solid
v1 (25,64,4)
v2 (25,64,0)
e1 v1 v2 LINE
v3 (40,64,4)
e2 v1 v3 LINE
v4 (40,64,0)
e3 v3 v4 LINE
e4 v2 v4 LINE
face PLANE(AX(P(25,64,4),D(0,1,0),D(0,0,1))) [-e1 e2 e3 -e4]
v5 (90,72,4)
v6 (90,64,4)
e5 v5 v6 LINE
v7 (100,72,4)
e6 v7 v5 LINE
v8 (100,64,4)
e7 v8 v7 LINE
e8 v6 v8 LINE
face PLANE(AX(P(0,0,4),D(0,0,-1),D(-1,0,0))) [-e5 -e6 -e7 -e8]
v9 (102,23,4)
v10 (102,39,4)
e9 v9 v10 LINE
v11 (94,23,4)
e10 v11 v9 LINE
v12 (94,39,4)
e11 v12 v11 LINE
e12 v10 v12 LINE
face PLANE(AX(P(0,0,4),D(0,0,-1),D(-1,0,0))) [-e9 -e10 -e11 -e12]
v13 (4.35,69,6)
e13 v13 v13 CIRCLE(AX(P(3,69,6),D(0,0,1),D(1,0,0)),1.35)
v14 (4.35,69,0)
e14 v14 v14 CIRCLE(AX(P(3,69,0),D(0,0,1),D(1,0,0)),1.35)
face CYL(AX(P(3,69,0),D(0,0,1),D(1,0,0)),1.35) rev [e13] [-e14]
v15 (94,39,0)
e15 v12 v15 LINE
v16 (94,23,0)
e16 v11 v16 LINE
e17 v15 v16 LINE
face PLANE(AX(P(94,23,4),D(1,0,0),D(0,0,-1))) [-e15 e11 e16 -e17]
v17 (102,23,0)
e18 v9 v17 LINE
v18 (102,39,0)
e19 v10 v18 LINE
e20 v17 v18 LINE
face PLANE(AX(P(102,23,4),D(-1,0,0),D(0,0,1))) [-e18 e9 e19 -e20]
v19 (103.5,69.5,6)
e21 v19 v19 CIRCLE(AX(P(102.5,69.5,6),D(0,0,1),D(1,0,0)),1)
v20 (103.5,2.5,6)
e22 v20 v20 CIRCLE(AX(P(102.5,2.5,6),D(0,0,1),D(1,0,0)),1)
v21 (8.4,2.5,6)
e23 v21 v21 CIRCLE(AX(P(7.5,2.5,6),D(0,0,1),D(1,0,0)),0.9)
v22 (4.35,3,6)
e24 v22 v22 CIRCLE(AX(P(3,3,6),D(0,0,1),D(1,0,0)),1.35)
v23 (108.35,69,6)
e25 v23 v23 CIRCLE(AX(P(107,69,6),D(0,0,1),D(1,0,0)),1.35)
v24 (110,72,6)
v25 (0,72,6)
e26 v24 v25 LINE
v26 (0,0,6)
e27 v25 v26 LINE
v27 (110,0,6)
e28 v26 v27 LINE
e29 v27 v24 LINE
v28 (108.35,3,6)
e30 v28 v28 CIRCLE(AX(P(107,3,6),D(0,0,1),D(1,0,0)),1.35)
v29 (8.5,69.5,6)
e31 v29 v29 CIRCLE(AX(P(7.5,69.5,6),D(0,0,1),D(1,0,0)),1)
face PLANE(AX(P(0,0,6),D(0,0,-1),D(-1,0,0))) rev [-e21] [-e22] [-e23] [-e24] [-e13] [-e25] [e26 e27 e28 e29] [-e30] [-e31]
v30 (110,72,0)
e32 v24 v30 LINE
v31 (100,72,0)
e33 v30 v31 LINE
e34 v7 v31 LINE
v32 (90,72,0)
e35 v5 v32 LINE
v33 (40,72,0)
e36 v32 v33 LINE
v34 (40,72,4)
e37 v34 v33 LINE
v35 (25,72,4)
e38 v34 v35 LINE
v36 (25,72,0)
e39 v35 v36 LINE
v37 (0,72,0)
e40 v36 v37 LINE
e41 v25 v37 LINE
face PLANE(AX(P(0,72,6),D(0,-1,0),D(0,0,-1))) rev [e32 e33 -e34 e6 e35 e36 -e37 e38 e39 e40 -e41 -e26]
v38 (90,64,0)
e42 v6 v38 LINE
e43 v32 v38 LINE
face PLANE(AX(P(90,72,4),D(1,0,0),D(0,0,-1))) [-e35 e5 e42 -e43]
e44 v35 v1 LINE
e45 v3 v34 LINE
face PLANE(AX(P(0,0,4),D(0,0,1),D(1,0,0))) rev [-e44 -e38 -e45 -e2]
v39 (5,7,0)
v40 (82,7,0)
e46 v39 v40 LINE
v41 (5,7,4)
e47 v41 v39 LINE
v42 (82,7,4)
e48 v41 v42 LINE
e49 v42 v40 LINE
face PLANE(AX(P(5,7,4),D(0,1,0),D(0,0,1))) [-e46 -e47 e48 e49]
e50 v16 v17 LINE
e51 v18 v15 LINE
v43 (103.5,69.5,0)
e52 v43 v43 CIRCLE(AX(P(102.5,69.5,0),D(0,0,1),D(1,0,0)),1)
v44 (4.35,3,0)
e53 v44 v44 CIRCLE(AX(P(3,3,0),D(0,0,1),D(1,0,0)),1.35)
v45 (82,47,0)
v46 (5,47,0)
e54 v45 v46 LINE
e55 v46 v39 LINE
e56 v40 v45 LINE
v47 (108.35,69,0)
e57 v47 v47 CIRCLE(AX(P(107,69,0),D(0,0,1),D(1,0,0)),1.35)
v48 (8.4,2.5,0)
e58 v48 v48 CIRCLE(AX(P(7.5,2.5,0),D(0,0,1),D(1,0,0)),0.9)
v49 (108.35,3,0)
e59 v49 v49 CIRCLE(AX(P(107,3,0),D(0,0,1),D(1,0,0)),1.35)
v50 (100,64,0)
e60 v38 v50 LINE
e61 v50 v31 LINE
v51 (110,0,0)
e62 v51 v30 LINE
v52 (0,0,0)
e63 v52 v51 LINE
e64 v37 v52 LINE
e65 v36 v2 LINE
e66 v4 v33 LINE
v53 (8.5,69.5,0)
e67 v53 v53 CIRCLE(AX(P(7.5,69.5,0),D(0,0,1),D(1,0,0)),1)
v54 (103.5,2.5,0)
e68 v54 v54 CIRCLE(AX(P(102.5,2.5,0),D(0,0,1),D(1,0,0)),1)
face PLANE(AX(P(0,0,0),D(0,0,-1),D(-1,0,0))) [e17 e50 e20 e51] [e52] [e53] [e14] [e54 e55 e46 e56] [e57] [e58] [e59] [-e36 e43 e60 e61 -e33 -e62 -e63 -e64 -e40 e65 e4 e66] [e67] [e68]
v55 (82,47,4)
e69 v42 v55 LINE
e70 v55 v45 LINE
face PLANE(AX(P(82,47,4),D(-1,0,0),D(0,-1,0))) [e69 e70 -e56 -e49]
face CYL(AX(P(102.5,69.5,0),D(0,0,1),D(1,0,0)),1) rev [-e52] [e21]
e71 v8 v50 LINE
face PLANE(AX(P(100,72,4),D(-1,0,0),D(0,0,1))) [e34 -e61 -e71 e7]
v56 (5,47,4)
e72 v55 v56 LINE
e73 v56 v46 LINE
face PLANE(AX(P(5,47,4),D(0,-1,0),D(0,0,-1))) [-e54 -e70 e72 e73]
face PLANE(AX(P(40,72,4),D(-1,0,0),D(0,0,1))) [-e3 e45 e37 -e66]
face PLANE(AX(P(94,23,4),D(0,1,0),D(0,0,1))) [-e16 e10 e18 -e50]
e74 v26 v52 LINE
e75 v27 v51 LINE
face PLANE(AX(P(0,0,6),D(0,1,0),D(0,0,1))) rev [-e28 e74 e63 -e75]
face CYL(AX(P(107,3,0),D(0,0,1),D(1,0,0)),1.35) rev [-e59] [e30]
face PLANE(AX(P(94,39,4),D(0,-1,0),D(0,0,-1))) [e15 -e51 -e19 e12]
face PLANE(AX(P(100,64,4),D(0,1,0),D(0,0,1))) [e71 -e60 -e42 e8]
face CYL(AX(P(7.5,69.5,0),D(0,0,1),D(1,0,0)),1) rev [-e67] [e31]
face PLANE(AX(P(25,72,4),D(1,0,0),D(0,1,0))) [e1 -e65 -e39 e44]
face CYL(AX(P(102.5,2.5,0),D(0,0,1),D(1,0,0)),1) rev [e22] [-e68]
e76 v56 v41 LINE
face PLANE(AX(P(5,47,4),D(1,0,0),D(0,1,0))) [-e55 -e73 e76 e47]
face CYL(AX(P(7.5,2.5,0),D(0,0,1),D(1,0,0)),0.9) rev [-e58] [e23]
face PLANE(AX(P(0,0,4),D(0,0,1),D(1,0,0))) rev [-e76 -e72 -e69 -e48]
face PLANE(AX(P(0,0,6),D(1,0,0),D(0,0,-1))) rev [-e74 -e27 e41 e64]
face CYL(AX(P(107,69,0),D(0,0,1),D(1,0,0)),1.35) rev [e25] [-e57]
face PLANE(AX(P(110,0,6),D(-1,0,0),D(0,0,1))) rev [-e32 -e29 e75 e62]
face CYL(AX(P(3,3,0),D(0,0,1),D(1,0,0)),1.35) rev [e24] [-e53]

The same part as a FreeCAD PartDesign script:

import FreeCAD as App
import Part
import Sketcher

V = App.Vector
Q = App.Units.Quantity


def add_polygon(sketch, points):
    """Adds a closed chain of lines whose ends are joined by coincident constraints."""
    first, n = sketch.GeometryCount, len(points)
    for a, b in zip(points, points[1:] + points[:1]):
        sketch.addGeometry(Part.LineSegment(App.Vector(*a, 0), App.Vector(*b, 0)), False)
    for i in range(n):
        sketch.addConstraint(Sketcher.Constraint("Coincident", first + i, 2, first + (i + 1) % n, 1))

doc = App.newDocument("Part")
body = doc.addObject("PartDesign::Body", "Body")

sketch1 = body.newObject("Sketcher::SketchObject", "Sketch")
sketch1.AttachmentSupport = (doc.getObject("XY_Plane"), [""])
sketch1.MapMode = "FlatFace"
add_polygon(sketch1, [(0, 72), (0, 0), (110, 0), (110, 72)])
sketch1.addConstraint([
    Sketcher.Constraint("Vertical", 0),
    Sketcher.Constraint("Horizontal", 1),
    Sketcher.Constraint("Vertical", 2),
    Sketcher.Constraint("Horizontal", 3),
    Sketcher.Constraint("Coincident", 0, 2, -1, 1),
    Sketcher.Constraint("DistanceX", 1, 1, 1, 2, Q("110 mm")),
    Sketcher.Constraint("DistanceY", 0, 2, 0, 1, Q("72 mm")),
])
pad1 = body.newObject("PartDesign::Pad", "Pad")
pad1.Profile = sketch1
pad1.Length = 6

sketch2 = body.newObject("Sketcher::SketchObject", "Sketch001")
sketch2.AttachmentSupport = (doc.getObject("XY_Plane"), [""])
sketch2.MapMode = "FlatFace"
sketch2.AttachmentOffset = App.Placement(V(0, 0, 6), App.Rotation())
sketch2.addGeometry([
    Part.Circle(V(7.5, 69.5, 0), V(0, 0, 1), 1),
    Part.Circle(V(7.5, 2.5, 0), V(0, 0, 1), 0.9),
    Part.Circle(V(102.5, 2.5, 0), V(0, 0, 1), 1),
    Part.Circle(V(102.5, 69.5, 0), V(0, 0, 1), 1),
], False)
sketch2.addConstraint([
    Sketcher.Constraint("Equal", 0, 2),
    Sketcher.Constraint("Equal", 2, 3),
    Sketcher.Constraint("Horizontal", 1, 3, 2, 3),
    Sketcher.Constraint("Horizontal", 0, 3, 3, 3),
    Sketcher.Constraint("Vertical", 0, 3, 1, 3),
    Sketcher.Constraint("Vertical", 2, 3, 3, 3),
    Sketcher.Constraint("Diameter", 0, Q("2 mm")),
    Sketcher.Constraint("Diameter", 1, Q("1.8 mm")),
    Sketcher.Constraint("DistanceY", 1, 3, 0, 3, Q("67 mm")),
    Sketcher.Constraint("DistanceX", 1, 3, 2, 3, Q("95 mm")),
    Sketcher.Constraint("DistanceX", -1, 1, 0, 3, Q("7.5 mm")),
    Sketcher.Constraint("DistanceY", -1, 1, 0, 3, Q("69.5 mm")),
])
pocket1 = body.newObject("PartDesign::Pocket", "Pocket")
pocket1.Profile = sketch2
pocket1.Type = "ThroughAll"

sketch3 = body.newObject("Sketcher::SketchObject", "Sketch002")
sketch3.AttachmentSupport = (doc.getObject("XY_Plane"), [""])
sketch3.MapMode = "FlatFace"
add_polygon(sketch3, [(5, 47), (5, 7), (82, 7), (82, 47)])
add_polygon(sketch3, [(25, 72), (25, 64), (40, 64), (40, 72)])
add_polygon(sketch3, [(90, 72), (90, 64), (100, 64), (100, 72)])
add_polygon(sketch3, [(94, 39), (94, 23), (102, 23), (102, 39)])
sketch3.addConstraint([
    Sketcher.Constraint("Vertical", 0),
    Sketcher.Constraint("Horizontal", 1),
    Sketcher.Constraint("Vertical", 2),
    Sketcher.Constraint("Horizontal", 3),
    Sketcher.Constraint("Vertical", 4),
    Sketcher.Constraint("Horizontal", 5),
    Sketcher.Constraint("Vertical", 6),
    Sketcher.Constraint("Horizontal", 7),
    Sketcher.Constraint("Vertical", 8),
    Sketcher.Constraint("Horizontal", 9),
    Sketcher.Constraint("Vertical", 10),
    Sketcher.Constraint("Horizontal", 11),
    Sketcher.Constraint("Vertical", 12),
    Sketcher.Constraint("Horizontal", 13),
    Sketcher.Constraint("Vertical", 14),
    Sketcher.Constraint("Horizontal", 15),
    Sketcher.Constraint("Horizontal", 5, 2, 8, 2),
    Sketcher.Constraint("Horizontal", 7, 2, 10, 2),
    Sketcher.Constraint("Equal", 15, 4),
    Sketcher.Constraint("DistanceX", 1, 1, 1, 2, Q("77 mm")),
    Sketcher.Constraint("DistanceX", 5, 1, 5, 2, Q("15 mm")),
    Sketcher.Constraint("DistanceX", 9, 1, 9, 2, Q("10 mm")),
    Sketcher.Constraint("DistanceX", 13, 1, 13, 2, Q("8 mm")),
    Sketcher.Constraint("DistanceY", 0, 2, 0, 1, Q("40 mm")),
    Sketcher.Constraint("DistanceY", 12, 2, 12, 1, Q("16 mm")),
    Sketcher.Constraint("DistanceX", -1, 1, 0, 2, Q("5 mm")),
    Sketcher.Constraint("DistanceY", -1, 1, 0, 2, Q("7 mm")),
    Sketcher.Constraint("DistanceX", -1, 1, 4, 2, Q("25 mm")),
    Sketcher.Constraint("DistanceY", -1, 1, 4, 2, Q("64 mm")),
    Sketcher.Constraint("DistanceX", -1, 1, 8, 2, Q("90 mm")),
    Sketcher.Constraint("DistanceX", -1, 1, 12, 2, Q("94 mm")),
    Sketcher.Constraint("DistanceY", -1, 1, 12, 2, Q("23 mm")),
])
pocket2 = body.newObject("PartDesign::Pocket", "Pocket001")
pocket2.Profile = sketch3
pocket2.Length = 4
pocket2.Reversed = True

sketch4 = body.newObject("Sketcher::SketchObject", "Sketch003")
sketch4.AttachmentSupport = (doc.getObject("XY_Plane"), [""])
sketch4.MapMode = "FlatFace"
sketch4.AttachmentOffset = App.Placement(V(0, 0, 6), App.Rotation())
sketch4.addGeometry([
    Part.Circle(V(107, 69, 0), V(0, 0, 1), 1.4),
    Part.Circle(V(107, 3, 0), V(0, 0, 1), 1.4),
    Part.Circle(V(3, 69, 0), V(0, 0, 1), 1.4),
    Part.Circle(V(3, 3, 0), V(0, 0, 1), 1.4),
], False)
sketch4.addConstraint([
    Sketcher.Constraint("Equal", 0, 1),
    Sketcher.Constraint("Equal", 1, 2),
    Sketcher.Constraint("Equal", 2, 3),
    Sketcher.Constraint("Horizontal", 0, 3, 2, 3),
    Sketcher.Constraint("Horizontal", 1, 3, 3, 3),
    Sketcher.Constraint("Vertical", 0, 3, 1, 3),
    Sketcher.Constraint("Vertical", 2, 3, 3, 3),
    Sketcher.Constraint("Diameter", 0, Q("2.7 mm")),
    Sketcher.Constraint("DistanceX", -1, 1, 0, 3, Q("107 mm")),
    Sketcher.Constraint("DistanceY", -1, 1, 0, 3, Q("69 mm")),
    Sketcher.Constraint("DistanceY", -1, 1, 1, 3, Q("3 mm")),
    Sketcher.Constraint("DistanceX", -1, 1, 2, 3, Q("3 mm")),
])
pocket3 = body.newObject("PartDesign::Pocket", "Pocket002")
pocket3.Profile = sketch4
pocket3.Type = "ThroughAll"

doc.recompute()
